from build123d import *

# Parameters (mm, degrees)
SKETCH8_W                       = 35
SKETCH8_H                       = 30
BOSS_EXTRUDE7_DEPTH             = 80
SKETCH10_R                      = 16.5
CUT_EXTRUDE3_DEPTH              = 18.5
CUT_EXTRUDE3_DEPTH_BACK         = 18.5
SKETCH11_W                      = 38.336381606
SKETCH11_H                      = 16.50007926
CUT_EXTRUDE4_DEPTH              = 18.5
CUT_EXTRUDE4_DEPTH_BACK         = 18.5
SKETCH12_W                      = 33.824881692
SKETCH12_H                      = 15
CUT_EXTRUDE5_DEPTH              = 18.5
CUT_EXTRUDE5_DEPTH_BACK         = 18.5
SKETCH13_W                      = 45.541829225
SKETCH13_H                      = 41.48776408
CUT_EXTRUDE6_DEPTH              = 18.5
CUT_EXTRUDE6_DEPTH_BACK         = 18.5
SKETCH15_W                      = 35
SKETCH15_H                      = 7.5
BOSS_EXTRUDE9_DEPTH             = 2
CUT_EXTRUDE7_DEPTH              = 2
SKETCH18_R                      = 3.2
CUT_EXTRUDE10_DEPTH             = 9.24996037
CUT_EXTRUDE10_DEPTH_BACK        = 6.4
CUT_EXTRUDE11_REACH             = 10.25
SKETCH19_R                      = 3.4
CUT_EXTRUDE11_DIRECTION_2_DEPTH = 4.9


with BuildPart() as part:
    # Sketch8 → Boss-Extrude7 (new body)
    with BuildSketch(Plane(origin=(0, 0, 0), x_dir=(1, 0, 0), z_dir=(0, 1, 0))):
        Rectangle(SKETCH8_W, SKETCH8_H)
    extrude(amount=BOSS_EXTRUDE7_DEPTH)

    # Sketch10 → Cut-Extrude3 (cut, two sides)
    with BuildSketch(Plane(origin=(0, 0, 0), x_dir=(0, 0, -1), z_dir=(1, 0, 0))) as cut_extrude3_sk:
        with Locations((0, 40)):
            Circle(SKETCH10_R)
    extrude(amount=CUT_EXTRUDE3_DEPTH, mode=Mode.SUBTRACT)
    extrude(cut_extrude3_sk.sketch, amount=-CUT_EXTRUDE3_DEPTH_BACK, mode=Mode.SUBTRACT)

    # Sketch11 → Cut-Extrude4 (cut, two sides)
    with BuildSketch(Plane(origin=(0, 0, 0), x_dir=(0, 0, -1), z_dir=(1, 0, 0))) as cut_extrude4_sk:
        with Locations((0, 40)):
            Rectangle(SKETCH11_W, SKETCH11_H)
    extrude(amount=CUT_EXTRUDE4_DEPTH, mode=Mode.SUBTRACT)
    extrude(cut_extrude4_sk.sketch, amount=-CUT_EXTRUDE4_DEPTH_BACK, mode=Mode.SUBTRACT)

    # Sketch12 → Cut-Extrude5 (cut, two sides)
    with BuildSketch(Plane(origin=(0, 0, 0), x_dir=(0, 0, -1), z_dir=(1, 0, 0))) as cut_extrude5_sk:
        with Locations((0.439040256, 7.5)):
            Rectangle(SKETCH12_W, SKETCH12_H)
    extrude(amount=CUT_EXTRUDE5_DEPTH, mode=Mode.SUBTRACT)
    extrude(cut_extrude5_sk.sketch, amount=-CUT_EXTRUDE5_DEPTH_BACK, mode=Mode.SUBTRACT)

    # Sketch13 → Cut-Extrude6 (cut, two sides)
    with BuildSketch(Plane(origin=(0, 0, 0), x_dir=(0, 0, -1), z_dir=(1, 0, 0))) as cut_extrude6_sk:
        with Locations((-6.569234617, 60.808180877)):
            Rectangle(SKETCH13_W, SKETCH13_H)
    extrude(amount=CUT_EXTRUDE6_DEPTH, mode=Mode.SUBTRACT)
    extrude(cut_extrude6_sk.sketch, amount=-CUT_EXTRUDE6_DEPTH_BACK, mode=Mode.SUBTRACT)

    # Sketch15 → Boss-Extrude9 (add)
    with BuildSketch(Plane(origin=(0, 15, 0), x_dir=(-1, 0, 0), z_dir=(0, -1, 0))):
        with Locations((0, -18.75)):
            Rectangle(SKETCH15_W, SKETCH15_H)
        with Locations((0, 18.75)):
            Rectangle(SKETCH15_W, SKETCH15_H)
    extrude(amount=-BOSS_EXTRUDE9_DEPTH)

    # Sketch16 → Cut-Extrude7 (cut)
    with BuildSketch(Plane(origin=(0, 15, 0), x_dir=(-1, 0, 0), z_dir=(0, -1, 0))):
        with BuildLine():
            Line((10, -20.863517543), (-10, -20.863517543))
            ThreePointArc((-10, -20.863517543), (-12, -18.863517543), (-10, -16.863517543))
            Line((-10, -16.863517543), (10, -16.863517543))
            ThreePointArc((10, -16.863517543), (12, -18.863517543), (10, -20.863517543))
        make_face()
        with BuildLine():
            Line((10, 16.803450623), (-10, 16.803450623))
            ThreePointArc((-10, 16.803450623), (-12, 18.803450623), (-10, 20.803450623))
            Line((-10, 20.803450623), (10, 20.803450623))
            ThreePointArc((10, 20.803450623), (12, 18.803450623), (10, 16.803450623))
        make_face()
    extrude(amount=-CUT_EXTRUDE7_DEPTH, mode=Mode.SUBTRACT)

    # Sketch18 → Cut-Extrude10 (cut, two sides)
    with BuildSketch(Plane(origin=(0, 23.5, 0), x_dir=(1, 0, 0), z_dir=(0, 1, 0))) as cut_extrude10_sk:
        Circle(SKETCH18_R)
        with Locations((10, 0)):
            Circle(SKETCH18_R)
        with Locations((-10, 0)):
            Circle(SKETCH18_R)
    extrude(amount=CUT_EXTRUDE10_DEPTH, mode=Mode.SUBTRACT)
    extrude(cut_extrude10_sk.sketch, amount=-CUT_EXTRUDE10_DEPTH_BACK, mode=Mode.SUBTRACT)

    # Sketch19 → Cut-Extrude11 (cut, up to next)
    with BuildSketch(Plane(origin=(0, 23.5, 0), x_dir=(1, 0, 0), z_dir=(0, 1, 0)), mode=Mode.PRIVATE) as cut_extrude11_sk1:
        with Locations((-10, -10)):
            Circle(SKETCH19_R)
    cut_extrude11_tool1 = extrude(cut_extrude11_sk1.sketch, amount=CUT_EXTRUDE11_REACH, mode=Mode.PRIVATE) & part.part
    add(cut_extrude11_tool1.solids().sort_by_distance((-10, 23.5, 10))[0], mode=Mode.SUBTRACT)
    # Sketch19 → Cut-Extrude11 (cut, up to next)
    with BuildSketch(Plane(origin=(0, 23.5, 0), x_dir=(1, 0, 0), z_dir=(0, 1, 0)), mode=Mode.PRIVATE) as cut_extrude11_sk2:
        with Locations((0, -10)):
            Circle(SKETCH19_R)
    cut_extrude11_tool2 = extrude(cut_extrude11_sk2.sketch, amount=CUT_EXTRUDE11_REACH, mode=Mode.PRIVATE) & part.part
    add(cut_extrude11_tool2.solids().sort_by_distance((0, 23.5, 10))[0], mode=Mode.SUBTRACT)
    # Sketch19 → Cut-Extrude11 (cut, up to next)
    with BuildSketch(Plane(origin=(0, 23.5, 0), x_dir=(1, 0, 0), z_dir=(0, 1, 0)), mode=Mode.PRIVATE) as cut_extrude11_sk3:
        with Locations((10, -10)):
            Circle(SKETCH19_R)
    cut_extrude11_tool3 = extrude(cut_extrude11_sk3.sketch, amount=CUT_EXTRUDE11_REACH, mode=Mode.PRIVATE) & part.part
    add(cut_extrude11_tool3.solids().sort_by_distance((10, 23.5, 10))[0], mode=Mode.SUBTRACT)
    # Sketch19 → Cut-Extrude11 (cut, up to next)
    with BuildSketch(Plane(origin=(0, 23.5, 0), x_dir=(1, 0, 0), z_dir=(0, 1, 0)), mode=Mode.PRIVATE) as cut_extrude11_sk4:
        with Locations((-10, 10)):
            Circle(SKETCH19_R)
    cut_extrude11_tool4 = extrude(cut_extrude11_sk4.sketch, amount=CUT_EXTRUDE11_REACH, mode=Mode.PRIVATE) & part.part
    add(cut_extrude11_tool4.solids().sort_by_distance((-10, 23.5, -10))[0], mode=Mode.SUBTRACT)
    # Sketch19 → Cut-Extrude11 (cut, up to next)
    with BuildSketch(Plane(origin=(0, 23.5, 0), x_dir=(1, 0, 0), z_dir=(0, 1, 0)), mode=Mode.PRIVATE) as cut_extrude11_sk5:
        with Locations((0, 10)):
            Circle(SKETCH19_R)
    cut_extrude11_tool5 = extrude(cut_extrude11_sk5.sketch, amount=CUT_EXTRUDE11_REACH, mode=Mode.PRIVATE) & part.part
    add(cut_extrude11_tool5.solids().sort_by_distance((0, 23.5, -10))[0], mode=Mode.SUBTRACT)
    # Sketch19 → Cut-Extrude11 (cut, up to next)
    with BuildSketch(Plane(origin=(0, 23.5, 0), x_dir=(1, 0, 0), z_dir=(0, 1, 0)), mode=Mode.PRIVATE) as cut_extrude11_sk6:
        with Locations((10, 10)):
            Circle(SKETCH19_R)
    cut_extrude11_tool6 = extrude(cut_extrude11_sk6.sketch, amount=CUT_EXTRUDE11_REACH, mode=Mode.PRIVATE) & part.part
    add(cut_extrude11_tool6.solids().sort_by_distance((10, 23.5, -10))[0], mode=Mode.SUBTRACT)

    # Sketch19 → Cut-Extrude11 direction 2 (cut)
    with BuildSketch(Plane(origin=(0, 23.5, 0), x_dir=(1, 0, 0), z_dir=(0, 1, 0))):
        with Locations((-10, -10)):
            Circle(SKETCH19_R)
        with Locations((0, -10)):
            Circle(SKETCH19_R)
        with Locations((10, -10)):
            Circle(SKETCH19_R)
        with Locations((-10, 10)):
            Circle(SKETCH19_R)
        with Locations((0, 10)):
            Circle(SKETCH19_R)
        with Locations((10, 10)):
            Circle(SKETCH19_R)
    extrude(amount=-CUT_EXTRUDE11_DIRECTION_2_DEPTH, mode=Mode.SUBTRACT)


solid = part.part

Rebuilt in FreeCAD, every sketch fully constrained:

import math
import FreeCAD as App
import Part
import Sketcher

doc = App.newDocument("Part")
params = doc.addObject("Spreadsheet::Sheet", "Params")
for row, (alias, value) in enumerate([
    ("sketch1_width", "35 mm"),
    ("sketch1_height", "30 mm"),
    ("pad1_length", "80 mm"),
    ("sketch2_diameter", "33 mm"),
    ("sketch4_width", "15 mm"),
    ("sketch6_width", "35 mm"),
    ("sketch6_height", "7.5 mm"),
    ("pad2_length", "2 mm"),
    ("sketch7_radius", "2 mm"),
    ("sketch7_width", "20 mm"),
    ("pocket5_length", "2 mm"),
    ("sketch8_diameter", "6.4 mm"),
    ("pocket6_length", "9.24996 mm"),
    ("pocket6_length2", "6.4 mm"),
    ("sketch9_diameter", "6.8 mm"),
    ("sketch10_diameter", "6.8 mm"),
    ("sketch11_diameter", "6.8 mm"),
    ("sketch12_diameter", "6.8 mm"),
    ("sketch13_diameter", "6.8 mm"),
    ("sketch14_diameter", "6.8 mm"),
    ("sketch15_diameter", "6.8 mm"),
    ("pocket13_length", "4.9 mm"),
], start=1):
    params.set(f"A{row}", alias)
    params.set(f"B{row}", "=" + value)
    params.setAlias(f"B{row}", alias)

body = doc.addObject("PartDesign::Body", "Body")
body.AllowCompound = True

sketch1 = body.newObject("Sketcher::SketchObject", "Sketch")
sketch1.AttachmentSupport = (doc.getObject("XZ_Plane"), [""])
sketch1.MapMode = "FlatFace"
sketch1.addGeometry([
    Part.LineSegment(App.Vector(-17.5, -15, 0), App.Vector(-17.5, 15, 0)),
    Part.LineSegment(App.Vector(-17.5, 15, 0), App.Vector(17.5, 15, 0)),
    Part.LineSegment(App.Vector(17.5, 15, 0), App.Vector(17.5, -15, 0)),
    Part.LineSegment(App.Vector(17.5, -15, 0), App.Vector(-17.5, -15, 0)),
], False)
sketch1.addConstraint([
    Sketcher.Constraint("Coincident", 0, 2, 1, 1),
    Sketcher.Constraint("Coincident", 1, 2, 2, 1),
    Sketcher.Constraint("Coincident", 2, 2, 3, 1),
    Sketcher.Constraint("Coincident", 3, 2, 0, 1),
    Sketcher.Constraint("Vertical", 0),
    Sketcher.Constraint("Horizontal", 1),
    Sketcher.Constraint("Vertical", 2),
    Sketcher.Constraint("Horizontal", 3),
    Sketcher.Constraint("Symmetric", 0, 2, 2, 2, -1, 1),
    Sketcher.Constraint("DistanceX", 1, 1, 1, 2, 35.0),
    Sketcher.Constraint("DistanceY", 0, 1, 0, 2, 30.0),
])
sketch1.setExpression("Constraints[9]", "Params.sketch1_width")
sketch1.setExpression("Constraints[10]", "Params.sketch1_height")
pad1 = body.newObject("PartDesign::Pad", "Pad")
pad1.Profile = sketch1
pad1.setExpression("Length", "Params.pad1_length")
pad1.Reversed = True

sketch2 = body.newObject("Sketcher::SketchObject", "Sketch001")
sketch2.AttachmentSupport = (doc.getObject("YZ_Plane"), [""])
sketch2.MapMode = "FlatFace"
sketch2.addGeometry(Part.Circle(App.Vector(40, 0, 0), App.Vector(0, 0, 1), 16.5), False)
sketch2.addConstraint([
    Sketcher.Constraint("PointOnObject", 0, 3, -1),
    Sketcher.Constraint("Diameter", 0, 33.0),
    Sketcher.Constraint("DistanceX", -1, 1, 0, 3, 40.0),
])
sketch2.setExpression("Constraints[1]", "Params.sketch2_diameter")
pocket1 = body.newObject("PartDesign::Pocket", "Pocket")
pocket1.Profile = sketch2
pocket1.Type = "ThroughAll"
pocket1.Midplane = True

sketch3 = body.newObject("Sketcher::SketchObject", "Sketch002")
sketch3.AttachmentSupport = (doc.getObject("YZ_Plane"), [""])
sketch3.MapMode = "FlatFace"
sketch3.addGeometry([
    Part.LineSegment(App.Vector(48.25004, 19.168191, 0), App.Vector(31.74996, 19.168191, 0)),
    Part.LineSegment(App.Vector(31.74996, 19.168191, 0), App.Vector(31.74996, -19.168191, 0)),
    Part.LineSegment(App.Vector(31.74996, -19.168191, 0), App.Vector(48.25004, -19.168191, 0)),
    Part.LineSegment(App.Vector(48.25004, -19.168191, 0), App.Vector(48.25004, 19.168191, 0)),
], False)
sketch3.addConstraint([
    Sketcher.Constraint("Coincident", 0, 2, 1, 1),
    Sketcher.Constraint("Coincident", 1, 2, 2, 1),
    Sketcher.Constraint("Coincident", 2, 2, 3, 1),
    Sketcher.Constraint("Coincident", 3, 2, 0, 1),
    Sketcher.Constraint("Horizontal", 0),
    Sketcher.Constraint("Vertical", 1),
    Sketcher.Constraint("Horizontal", 2),
    Sketcher.Constraint("Vertical", 3),
    Sketcher.Constraint("DistanceX", 0, 2, 0, 1, 16.500079),
    Sketcher.Constraint("DistanceY", 1, 2, 1, 1, 38.336382),
    Sketcher.Constraint("DistanceX", -1, 1, 0, 2, 31.74996),
    Sketcher.Constraint("DistanceY", -1, 1, 0, 2, 19.168191),
])
pocket2 = body.newObject("PartDesign::Pocket", "Pocket001")
pocket2.Profile = sketch3
pocket2.Type = "ThroughAll"
pocket2.Midplane = True

sketch4 = body.newObject("Sketcher::SketchObject", "Sketch003")
sketch4.AttachmentSupport = (doc.getObject("YZ_Plane"), [""])
sketch4.MapMode = "FlatFace"
sketch4.addGeometry([
    Part.LineSegment(App.Vector(15, 16.473401, 0), App.Vector(0, 16.473401, 0)),
    Part.LineSegment(App.Vector(0, 16.473401, 0), App.Vector(0, -17.351481, 0)),
    Part.LineSegment(App.Vector(0, -17.351481, 0), App.Vector(15, -17.351481, 0)),
    Part.LineSegment(App.Vector(15, -17.351481, 0), App.Vector(15, 16.473401, 0)),
], False)
sketch4.addConstraint([
    Sketcher.Constraint("Coincident", 0, 2, 1, 1),
    Sketcher.Constraint("Coincident", 1, 2, 2, 1),
    Sketcher.Constraint("Coincident", 2, 2, 3, 1),
    Sketcher.Constraint("Coincident", 3, 2, 0, 1),
    Sketcher.Constraint("Horizontal", 0),
    Sketcher.Constraint("Vertical", 1),
    Sketcher.Constraint("Horizontal", 2),
    Sketcher.Constraint("Vertical", 3),
    Sketcher.Constraint("PointOnObject", 0, 2, -2),
    Sketcher.Constraint("DistanceX", 0, 2, 0, 1, 15.0),
    Sketcher.Constraint("DistanceY", 1, 2, 1, 1, 33.824882),
    Sketcher.Constraint("DistanceY", -1, 1, 0, 2, 16.473401),
])
sketch4.setExpression("Constraints[9]", "Params.sketch4_width")
pocket3 = body.newObject("PartDesign::Pocket", "Pocket002")
pocket3.Profile = sketch4
pocket3.Type = "ThroughAll"
pocket3.Midplane = True

sketch5 = body.newObject("Sketcher::SketchObject", "Sketch004")
sketch5.AttachmentSupport = (doc.getObject("YZ_Plane"), [""])
sketch5.MapMode = "FlatFace"
sketch5.addGeometry([
    Part.LineSegment(App.Vector(81.552063, 29.340149, 0), App.Vector(40.064299, 29.340149, 0)),
    Part.LineSegment(App.Vector(40.064299, 29.340149, 0), App.Vector(40.064299, -16.20168, 0)),
    Part.LineSegment(App.Vector(40.064299, -16.20168, 0), App.Vector(81.552063, -16.20168, 0)),
    Part.LineSegment(App.Vector(81.552063, -16.20168, 0), App.Vector(81.552063, 29.340149, 0)),
], False)
sketch5.addConstraint([
    Sketcher.Constraint("Coincident", 0, 2, 1, 1),
    Sketcher.Constraint("Coincident", 1, 2, 2, 1),
    Sketcher.Constraint("Coincident", 2, 2, 3, 1),
    Sketcher.Constraint("Coincident", 3, 2, 0, 1),
    Sketcher.Constraint("Horizontal", 0),
    Sketcher.Constraint("Vertical", 1),
    Sketcher.Constraint("Horizontal", 2),
    Sketcher.Constraint("Vertical", 3),
    Sketcher.Constraint("DistanceY", 1, 2, 1, 1, 45.541829),
    Sketcher.Constraint("DistanceX", -1, 1, 0, 2, 40.064299),
    Sketcher.Constraint("DistanceX", 0, 2, 0, 1, 41.487764),
    Sketcher.Constraint("DistanceY", -1, 1, 0, 2, 29.340149),
])
pocket4 = body.newObject("PartDesign::Pocket", "Pocket003")
pocket4.Profile = sketch5
pocket4.Type = "ThroughAll"
pocket4.Midplane = True

sketch6 = body.newObject("Sketcher::SketchObject", "Sketch005")
sketch6.AttachmentSupport = (doc.getObject("XZ_Plane"), [""])
sketch6.MapMode = "FlatFace"
sketch6.AttachmentOffset = App.Placement(App.Vector(0, 0, -15), App.Rotation())
sketch6.addGeometry([
    Part.LineSegment(App.Vector(17.5, 15, 0), App.Vector(17.5, 22.5, 0)),
    Part.LineSegment(App.Vector(17.5, 22.5, 0), App.Vector(-17.5, 22.5, 0)),
    Part.LineSegment(App.Vector(-17.5, 22.5, 0), App.Vector(-17.5, 15, 0)),
    Part.LineSegment(App.Vector(-17.5, 15, 0), App.Vector(17.5, 15, 0)),
    Part.LineSegment(App.Vector(17.5, -22.5, 0), App.Vector(17.5, -15, 0)),
    Part.LineSegment(App.Vector(17.5, -15, 0), App.Vector(-17.5, -15, 0)),
    Part.LineSegment(App.Vector(-17.5, -15, 0), App.Vector(-17.5, -22.5, 0)),
    Part.LineSegment(App.Vector(-17.5, -22.5, 0), App.Vector(17.5, -22.5, 0)),
], False)
sketch6.addConstraint([
    Sketcher.Constraint("Coincident", 0, 2, 1, 1),
    Sketcher.Constraint("Coincident", 1, 2, 2, 1),
    Sketcher.Constraint("Coincident", 2, 2, 3, 1),
    Sketcher.Constraint("Coincident", 3, 2, 0, 1),
    Sketcher.Constraint("Coincident", 4, 2, 5, 1),
    Sketcher.Constraint("Coincident", 5, 2, 6, 1),
    Sketcher.Constraint("Coincident", 6, 2, 7, 1),
    Sketcher.Constraint("Coincident", 7, 2, 4, 1),
    Sketcher.Constraint("Vertical", 0),
    Sketcher.Constraint("Horizontal", 1),
    Sketcher.Constraint("Vertical", 2),
    Sketcher.Constraint("Horizontal", 3),
    Sketcher.Constraint("Vertical", 4),
    Sketcher.Constraint("Horizontal", 5),
    Sketcher.Constraint("Vertical", 6),
    Sketcher.Constraint("Horizontal", 7),
    Sketcher.Constraint("Symmetric", 2, 2, 4, 2, -1, 1),
    Sketcher.Constraint("Symmetric", 0, 2, 6, 2, -1, 1),
    Sketcher.Constraint("Vertical", 3, 2, 4, 2),
    Sketcher.Constraint("DistanceX", 1, 2, 1, 1, 35.0),
    Sketcher.Constraint("DistanceY", 0, 1, 0, 2, 7.5),
    Sketcher.Constraint("DistanceY", -1, 1, 2, 2, 15.0),
])
sketch6.setExpression("Constraints[19]", "Params.sketch6_width")
sketch6.setExpression("Constraints[20]", "Params.sketch6_height")
pad2 = body.newObject("PartDesign::Pad", "Pad001")
pad2.Profile = sketch6
pad2.setExpression("Length", "Params.pad2_length")
pad2.Reversed = True

sketch7 = body.newObject("Sketcher::SketchObject", "Sketch006")
sketch7.AttachmentSupport = (doc.getObject("XZ_Plane"), [""])
sketch7.MapMode = "FlatFace"
sketch7.AttachmentOffset = App.Placement(App.Vector(0, 0, -15), App.Rotation())
sketch7.addGeometry([
    Part.LineSegment(App.Vector(10, 20.863518, 0), App.Vector(-10, 20.863518, 0)),
    Part.ArcOfCircle(Part.Circle(App.Vector(-10, 18.863518, 0), App.Vector(0, 0, 1), 2), math.radians(90), math.radians(270)),
    Part.LineSegment(App.Vector(-10, 16.863518, 0), App.Vector(10, 16.863518, 0)),
    Part.ArcOfCircle(Part.Circle(App.Vector(10, 18.863518, 0), App.Vector(0, 0, 1), 2), math.radians(-90), math.radians(90)),
    Part.LineSegment(App.Vector(10, -16.803451, 0), App.Vector(-10, -16.803451, 0)),
    Part.ArcOfCircle(Part.Circle(App.Vector(-10, -18.803451, 0), App.Vector(0, 0, 1), 2), math.radians(90), math.radians(270)),
    Part.LineSegment(App.Vector(-10, -20.803451, 0), App.Vector(10, -20.803451, 0)),
    Part.ArcOfCircle(Part.Circle(App.Vector(10, -18.803451, 0), App.Vector(0, 0, 1), 2), math.radians(-90), math.radians(90)),
], False)
sketch7.addConstraint([
    Sketcher.Constraint("Tangent", 0, 2, 1, 1),
    Sketcher.Constraint("Tangent", 1, 2, 2, 1),
    Sketcher.Constraint("Tangent", 2, 2, 3, 1),
    Sketcher.Constraint("Tangent", 3, 2, 0, 1),
    Sketcher.Constraint("Tangent", 4, 2, 5, 1),
    Sketcher.Constraint("Tangent", 5, 2, 6, 1),
    Sketcher.Constraint("Tangent", 6, 2, 7, 1),
    Sketcher.Constraint("Tangent", 7, 2, 4, 1),
    Sketcher.Constraint("Horizontal", 0),
    Sketcher.Constraint("Horizontal", 2),
    Sketcher.Constraint("Horizontal", 4),
    Sketcher.Constraint("Horizontal", 6),
    Sketcher.Constraint("Equal", 3, 5),
    Sketcher.Constraint("Vertical", 1, 3, 5, 3),
    Sketcher.Constraint("Vertical", 3, 3, 7, 3),
    Sketcher.Constraint("Radius", 1, 2.0),
    Sketcher.Constraint("DistanceX", 0, 2, 0, 1, 20.0),
    Sketcher.Constraint("DistanceX", 1, 3, -1, 1, 10.0),
    Sketcher.Constraint("DistanceY", 5, 3, -1, 1, 18.803451),
    Sketcher.Constraint("DistanceY", 5, 3, 1, 3, 37.666968),
])
sketch7.setExpression("Constraints[15]", "Params.sketch7_radius")
sketch7.setExpression("Constraints[16]", "Params.sketch7_width")
pocket5 = body.newObject("PartDesign::Pocket", "Pocket004")
pocket5.Profile = sketch7
pocket5.setExpression("Length", "Params.pocket5_length")

sketch8 = body.newObject("Sketcher::SketchObject", "Sketch007")
sketch8.AttachmentSupport = (doc.getObject("XZ_Plane"), [""])
sketch8.MapMode = "FlatFace"
sketch8.AttachmentOffset = App.Placement(App.Vector(0, 0, -23.5), App.Rotation())
sketch8.addGeometry([
    Part.Circle(App.Vector(0, 0, 0), App.Vector(0, 0, 1), 3.2),
    Part.Circle(App.Vector(10, 0, 0), App.Vector(0, 0, 1), 3.2),
    Part.Circle(App.Vector(-10, 0, 0), App.Vector(0, 0, 1), 3.2),
], False)
sketch8.addConstraint([
    Sketcher.Constraint("Coincident", 0, 3, -1, 1),
    Sketcher.Constraint("Equal", 0, 1),
    Sketcher.Constraint("Equal", 1, 2),
    Sketcher.Constraint("Symmetric", 1, 3, 2, 3, -1, 1),
    Sketcher.Constraint("PointOnObject", 1, 3, -1),
    Sketcher.Constraint("Diameter", 0, 6.4),
    Sketcher.Constraint("DistanceX", -1, 1, 1, 3, 10.0),
])
sketch8.setExpression("Constraints[5]", "Params.sketch8_diameter")
pocket6 = body.newObject("PartDesign::Pocket", "Pocket005")
pocket6.Profile = sketch8
pocket6.Type = "TwoLengths"
pocket6.setExpression("Length", "Params.pocket6_length")
pocket6.setExpression("Length2", "Params.pocket6_length2")

sketch9 = body.newObject("Sketcher::SketchObject", "Sketch008")
sketch9.AttachmentSupport = (doc.getObject("XZ_Plane"), [""])
sketch9.MapMode = "FlatFace"
sketch9.AttachmentOffset = App.Placement(App.Vector(0, 0, -23.5), App.Rotation())
sketch9.addGeometry(Part.Circle(App.Vector(-10, 10, 0), App.Vector(0, 0, 1), 3.4), False)
sketch9.addConstraint([
    Sketcher.Constraint("Diameter", 0, 6.8),
    Sketcher.Constraint("DistanceX", 0, 3, -1, 1, 10.0),
    Sketcher.Constraint("DistanceY", -1, 1, 0, 3, 10.0),
])
sketch9.setExpression("Constraints[0]", "Params.sketch9_diameter")
pocket7 = body.newObject("PartDesign::Pocket", "Pocket006")
pocket7.Profile = sketch9
pocket7.Type = "UpToFirst"

sketch10 = body.newObject("Sketcher::SketchObject", "Sketch009")
sketch10.AttachmentSupport = (doc.getObject("XZ_Plane"), [""])
sketch10.MapMode = "FlatFace"
sketch10.AttachmentOffset = App.Placement(App.Vector(0, 0, -23.5), App.Rotation())
sketch10.addGeometry(Part.Circle(App.Vector(0, 10, 0), App.Vector(0, 0, 1), 3.4), False)
sketch10.addConstraint([
    Sketcher.Constraint("PointOnObject", 0, 3, -2),
    Sketcher.Constraint("Diameter", 0, 6.8),
    Sketcher.Constraint("DistanceY", -1, 1, 0, 3, 10.0),
])
sketch10.setExpression("Constraints[1]", "Params.sketch10_diameter")
pocket8 = body.newObject("PartDesign::Pocket", "Pocket007")
pocket8.Profile = sketch10
pocket8.Type = "UpToFirst"

sketch11 = body.newObject("Sketcher::SketchObject", "Sketch010")
sketch11.AttachmentSupport = (doc.getObject("XZ_Plane"), [""])
sketch11.MapMode = "FlatFace"
sketch11.AttachmentOffset = App.Placement(App.Vector(0, 0, -23.5), App.Rotation())
sketch11.addGeometry(Part.Circle(App.Vector(10, 10, 0), App.Vector(0, 0, 1), 3.4), False)
sketch11.addConstraint([
    Sketcher.Constraint("Diameter", 0, 6.8),
    Sketcher.Constraint("DistanceX", -1, 1, 0, 3, 10.0),
    Sketcher.Constraint("DistanceY", -1, 1, 0, 3, 10.0),
])
sketch11.setExpression("Constraints[0]", "Params.sketch11_diameter")
pocket9 = body.newObject("PartDesign::Pocket", "Pocket008")
pocket9.Profile = sketch11
pocket9.Type = "UpToFirst"

sketch12 = body.newObject("Sketcher::SketchObject", "Sketch011")
sketch12.AttachmentSupport = (doc.getObject("XZ_Plane"), [""])
sketch12.MapMode = "FlatFace"
sketch12.AttachmentOffset = App.Placement(App.Vector(0, 0, -23.5), App.Rotation())
sketch12.addGeometry(Part.Circle(App.Vector(-10, -10, 0), App.Vector(0, 0, 1), 3.4), False)
sketch12.addConstraint([
    Sketcher.Constraint("Diameter", 0, 6.8),
    Sketcher.Constraint("DistanceX", 0, 3, -1, 1, 10.0),
    Sketcher.Constraint("DistanceY", 0, 3, -1, 1, 10.0),
])
sketch12.setExpression("Constraints[0]", "Params.sketch12_diameter")
pocket10 = body.newObject("PartDesign::Pocket", "Pocket009")
pocket10.Profile = sketch12
pocket10.Type = "UpToFirst"

sketch13 = body.newObject("Sketcher::SketchObject", "Sketch012")
sketch13.AttachmentSupport = (doc.getObject("XZ_Plane"), [""])
sketch13.MapMode = "FlatFace"
sketch13.AttachmentOffset = App.Placement(App.Vector(0, 0, -23.5), App.Rotation())
sketch13.addGeometry(Part.Circle(App.Vector(0, -10, 0), App.Vector(0, 0, 1), 3.4), False)
sketch13.addConstraint([
    Sketcher.Constraint("PointOnObject", 0, 3, -2),
    Sketcher.Constraint("Diameter", 0, 6.8),
    Sketcher.Constraint("DistanceY", 0, 3, -1, 1, 10.0),
])
sketch13.setExpression("Constraints[1]", "Params.sketch13_diameter")
pocket11 = body.newObject("PartDesign::Pocket", "Pocket010")
pocket11.Profile = sketch13
pocket11.Type = "UpToFirst"

sketch14 = body.newObject("Sketcher::SketchObject", "Sketch013")
sketch14.AttachmentSupport = (doc.getObject("XZ_Plane"), [""])
sketch14.MapMode = "FlatFace"
sketch14.AttachmentOffset = App.Placement(App.Vector(0, 0, -23.5), App.Rotation())
sketch14.addGeometry(Part.Circle(App.Vector(10, -10, 0), App.Vector(0, 0, 1), 3.4), False)
sketch14.addConstraint([
    Sketcher.Constraint("Diameter", 0, 6.8),
    Sketcher.Constraint("DistanceX", -1, 1, 0, 3, 10.0),
    Sketcher.Constraint("DistanceY", 0, 3, -1, 1, 10.0),
])
sketch14.setExpression("Constraints[0]", "Params.sketch14_diameter")
pocket12 = body.newObject("PartDesign::Pocket", "Pocket011")
pocket12.Profile = sketch14
pocket12.Type = "UpToFirst"

sketch15 = body.newObject("Sketcher::SketchObject", "Sketch014")
sketch15.AttachmentSupport = (doc.getObject("XZ_Plane"), [""])
sketch15.MapMode = "FlatFace"
sketch15.AttachmentOffset = App.Placement(App.Vector(0, 0, -23.5), App.Rotation())
sketch15.addGeometry([
    Part.Circle(App.Vector(-10, 10, 0), App.Vector(0, 0, 1), 3.4),
    Part.Circle(App.Vector(0, 10, 0), App.Vector(0, 0, 1), 3.4),
    Part.Circle(App.Vector(10, 10, 0), App.Vector(0, 0, 1), 3.4),
    Part.Circle(App.Vector(-10, -10, 0), App.Vector(0, 0, 1), 3.4),
    Part.Circle(App.Vector(0, -10, 0), App.Vector(0, 0, 1), 3.4),
    Part.Circle(App.Vector(10, -10, 0), App.Vector(0, 0, 1), 3.4),
], False)
sketch15.addConstraint([
    Sketcher.Constraint("Equal", 0, 1),
    Sketcher.Constraint("Equal", 1, 2),
    Sketcher.Constraint("Equal", 2, 3),
    Sketcher.Constraint("Equal", 3, 4),
    Sketcher.Constraint("Equal", 4, 5),
    Sketcher.Constraint("Symmetric", 2, 3, 3, 3, -1, 1),
    Sketcher.Constraint("Symmetric", 1, 3, 4, 3, -1, 1),
    Sketcher.Constraint("Symmetric", 0, 3, 5, 3, -1, 1),
    Sketcher.Constraint("Symmetric", 0, 3, 2, 3, -2),
    Sketcher.Constraint("PointOnObject", 1, 3, -2),
    Sketcher.Constraint("Horizontal", 0, 3, 1, 3),
    Sketcher.Constraint("Diameter", 0, 6.8),
    Sketcher.Constraint("DistanceX", 0, 3, -1, 1, 10.0),
    Sketcher.Constraint("DistanceY", -1, 1, 0, 3, 10.0),
])
sketch15.setExpression("Constraints[11]", "Params.sketch15_diameter")
pocket13 = body.newObject("PartDesign::Pocket", "Pocket012")
pocket13.Profile = sketch15
pocket13.setExpression("Length", "Params.pocket13_length")
pocket13.Reversed = True

doc.recompute()
